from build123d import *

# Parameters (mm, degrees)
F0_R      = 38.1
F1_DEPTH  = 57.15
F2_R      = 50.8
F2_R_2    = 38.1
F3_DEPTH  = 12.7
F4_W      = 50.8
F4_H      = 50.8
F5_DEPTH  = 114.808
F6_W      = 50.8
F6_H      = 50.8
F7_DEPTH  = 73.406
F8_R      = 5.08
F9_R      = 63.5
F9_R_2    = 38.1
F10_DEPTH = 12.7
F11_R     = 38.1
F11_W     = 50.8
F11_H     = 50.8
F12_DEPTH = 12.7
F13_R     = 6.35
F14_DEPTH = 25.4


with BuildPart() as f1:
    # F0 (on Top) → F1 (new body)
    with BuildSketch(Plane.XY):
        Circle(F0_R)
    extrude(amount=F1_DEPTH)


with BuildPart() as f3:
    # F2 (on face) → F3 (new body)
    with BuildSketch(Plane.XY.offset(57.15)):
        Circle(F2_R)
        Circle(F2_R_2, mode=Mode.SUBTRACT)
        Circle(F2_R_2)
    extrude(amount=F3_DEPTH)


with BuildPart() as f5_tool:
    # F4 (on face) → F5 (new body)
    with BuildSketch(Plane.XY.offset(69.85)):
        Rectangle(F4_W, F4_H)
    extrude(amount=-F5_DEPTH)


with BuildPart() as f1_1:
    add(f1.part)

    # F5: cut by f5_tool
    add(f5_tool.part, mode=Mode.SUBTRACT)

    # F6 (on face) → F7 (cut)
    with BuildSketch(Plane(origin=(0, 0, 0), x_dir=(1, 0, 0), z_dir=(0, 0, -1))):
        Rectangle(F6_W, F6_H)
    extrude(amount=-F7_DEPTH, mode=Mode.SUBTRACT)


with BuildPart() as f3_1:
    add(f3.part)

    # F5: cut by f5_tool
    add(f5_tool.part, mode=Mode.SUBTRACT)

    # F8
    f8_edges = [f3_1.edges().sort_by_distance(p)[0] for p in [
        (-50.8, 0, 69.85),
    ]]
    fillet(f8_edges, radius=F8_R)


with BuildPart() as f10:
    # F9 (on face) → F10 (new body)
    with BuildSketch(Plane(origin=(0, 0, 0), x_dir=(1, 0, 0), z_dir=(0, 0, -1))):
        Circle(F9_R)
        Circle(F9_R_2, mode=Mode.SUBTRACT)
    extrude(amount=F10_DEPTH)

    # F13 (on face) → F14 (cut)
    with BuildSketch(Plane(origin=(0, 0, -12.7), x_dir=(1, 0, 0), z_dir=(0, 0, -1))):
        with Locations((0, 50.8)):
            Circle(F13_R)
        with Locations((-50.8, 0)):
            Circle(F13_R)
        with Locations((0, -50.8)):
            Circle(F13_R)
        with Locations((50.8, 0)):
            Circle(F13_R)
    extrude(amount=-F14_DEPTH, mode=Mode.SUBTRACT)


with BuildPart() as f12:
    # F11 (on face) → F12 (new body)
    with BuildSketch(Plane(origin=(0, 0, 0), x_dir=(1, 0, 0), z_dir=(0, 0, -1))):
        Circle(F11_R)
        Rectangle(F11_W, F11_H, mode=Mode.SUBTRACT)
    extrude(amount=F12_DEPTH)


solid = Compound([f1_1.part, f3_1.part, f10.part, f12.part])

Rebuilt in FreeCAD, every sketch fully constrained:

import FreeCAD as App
import Part
import Sketcher
Q = App.Units.Quantity


def edges_at(feature, points):
    """Names of the edges that pass closest to the given points."""
    edges = feature.Shape.Edges
    near = lambda p: min(range(len(edges)), key=lambda i: edges[i].distToShape(Part.Vertex(*p))[0])
    return sorted({f"Edge{near(p) + 1}" for p in points})

doc = App.newDocument("Part")
body = doc.addObject("PartDesign::Body", "Body")

# Sketch on XY plane
sketch1 = body.newObject("Sketcher::SketchObject", "Sketch")
sketch1.AttachmentSupport = (doc.getObject("XY_Plane"), [""])
sketch1.MapMode = "FlatFace"
sketch1.addGeometry(Part.Circle(App.Vector(0, 0, 0), App.Vector(0, 0, 1), 38), False)
sketch1.addConstraint([
    Sketcher.Constraint("Coincident", 0, 3, -1, 1),
    Sketcher.Constraint("Diameter", 0, Q("3 in")),
])
pad1 = body.newObject("PartDesign::Pad", "Pad")
pad1.Profile = sketch1
pad1.Length = Q("2.25 in")
body2 = doc.addObject("PartDesign::Body", "Body001")

# Sketch on XY plane
sketch2 = body2.newObject("Sketcher::SketchObject", "Sketch001")
sketch2.AttachmentSupport = (doc.getObject("XY_Plane001"), [""])
sketch2.MapMode = "FlatFace"
sketch2.AttachmentOffset = App.Placement(App.Vector(0, 0, 2.25 * 25.4), App.Rotation())
sketch2.addGeometry(Part.Circle(App.Vector(0, 0, 0), App.Vector(0, 0, 1), 51), False)
sketch2.addConstraint([
    Sketcher.Constraint("Coincident", 0, 3, -1, 1),
    Sketcher.Constraint("Diameter", 0, Q("4 in")),
])
pad2 = body2.newObject("PartDesign::Pad", "Pad001")
pad2.Profile = sketch2
pad2.Length = Q("0.5 in")
body3 = doc.addObject("PartDesign::Body", "Body002")

# Sketch on XY plane
sketch3 = body3.newObject("Sketcher::SketchObject", "Sketch002")
sketch3.AttachmentSupport = (doc.getObject("XY_Plane002"), [""])
sketch3.MapMode = "FlatFace"
sketch3.AttachmentOffset = App.Placement(App.Vector(0, 0, 2.75 * 25.4), App.Rotation())
sketch3.addGeometry([
    Part.LineSegment(App.Vector(-25, 25, 0), App.Vector(-25, -25, 0)),
    Part.LineSegment(App.Vector(-25, -25, 0), App.Vector(25, -25, 0)),
    Part.LineSegment(App.Vector(25, -25, 0), App.Vector(25, 25, 0)),
    Part.LineSegment(App.Vector(25, 25, 0), App.Vector(-25, 25, 0)),
], False)
sketch3.addConstraint([
    Sketcher.Constraint("Coincident", 0, 2, 1, 1),
    Sketcher.Constraint("Coincident", 1, 2, 2, 1),
    Sketcher.Constraint("Coincident", 2, 2, 3, 1),
    Sketcher.Constraint("Coincident", 3, 2, 0, 1),
    Sketcher.Constraint("Vertical", 0),
    Sketcher.Constraint("Horizontal", 1),
    Sketcher.Constraint("Vertical", 2),
    Sketcher.Constraint("Horizontal", 3),
    Sketcher.Constraint("Symmetric", 0, 2, 2, 2, -1, 1),
    Sketcher.Constraint("Equal", 3, 0),
    Sketcher.Constraint("DistanceX", 1, 1, 1, 2, Q("2 in")),
])
pad3 = body3.newObject("PartDesign::Pad", "Pad002")
pad3.Profile = sketch3
pad3.Length = Q("4.52 in")
pad3.Reversed = True
doc.recompute()

body4 = doc.addObject("PartDesign::Body", "Body003")
body4.BaseFeature = body3
boolean = body.newObject("PartDesign::Boolean", "Boolean")
boolean.Type = "Cut"
boolean.addObjects([body4])
doc.recompute()

# Sketch on XY plane
sketch4 = body.newObject("Sketcher::SketchObject", "Sketch003")
sketch4.AttachmentSupport = (doc.getObject("XY_Plane"), [""])
sketch4.MapMode = "FlatFace"
sketch4.addGeometry([
    Part.LineSegment(App.Vector(-25, -25, 0), App.Vector(-25, 25, 0)),
    Part.LineSegment(App.Vector(-25, 25, 0), App.Vector(25, 25, 0)),
    Part.LineSegment(App.Vector(25, 25, 0), App.Vector(25, -25, 0)),
    Part.LineSegment(App.Vector(25, -25, 0), App.Vector(-25, -25, 0)),
], False)
sketch4.addConstraint([
    Sketcher.Constraint("Coincident", 0, 2, 1, 1),
    Sketcher.Constraint("Coincident", 1, 2, 2, 1),
    Sketcher.Constraint("Coincident", 2, 2, 3, 1),
    Sketcher.Constraint("Coincident", 3, 2, 0, 1),
    Sketcher.Constraint("Vertical", 0),
    Sketcher.Constraint("Horizontal", 1),
    Sketcher.Constraint("Vertical", 2),
    Sketcher.Constraint("Horizontal", 3),
    Sketcher.Constraint("Symmetric", 0, 2, 2, 2, -1, 1),
    Sketcher.Constraint("Equal", 3, 0),
    Sketcher.Constraint("DistanceX", 1, 1, 1, 2, Q("2 in")),
])
pocket1 = body.newObject("PartDesign::Pocket", "Pocket")
pocket1.Profile = sketch4
pocket1.Length = Q("2.89 in")
pocket1.Reversed = True
doc.recompute()

boolean2 = body2.newObject("PartDesign::Boolean", "Boolean001")
boolean2.Type = "Cut"
boolean2.addObjects([body3])
doc.recompute()

fillet = body2.newObject("PartDesign::Fillet", "Fillet")
fillet.Base = (boolean2, edges_at(boolean2, [(-50.8, 0, 69.85)]))
fillet.Radius = Q("0.2 in")
body5 = doc.addObject("PartDesign::Body", "Body004")

# Sketch on XY plane
sketch5 = body5.newObject("Sketcher::SketchObject", "Sketch004")
sketch5.AttachmentSupport = (doc.getObject("XY_Plane004"), [""])
sketch5.MapMode = "FlatFace"
sketch5.addGeometry([
    Part.Circle(App.Vector(0, 0, 0), App.Vector(0, 0, 1), 64),
    Part.Circle(App.Vector(0, 0, 0), App.Vector(0, 0, 1), 38),
], False)
sketch5.addConstraint([
    Sketcher.Constraint("Coincident", 0, 3, -1, 1),
    Sketcher.Constraint("Coincident", 1, 3, -1, 1),
    Sketcher.Constraint("Diameter", 0, Q("5 in")),
    Sketcher.Constraint("Diameter", 1, Q("3 in")),
])
pad4 = body5.newObject("PartDesign::Pad", "Pad003")
pad4.Profile = sketch5
pad4.Length = Q("0.5 in")
pad4.Reversed = True

# Sketch on XY plane
sketch6 = body5.newObject("Sketcher::SketchObject", "Sketch005")
sketch6.AttachmentSupport = (doc.getObject("XY_Plane004"), [""])
sketch6.MapMode = "FlatFace"
sketch6.AttachmentOffset = App.Placement(App.Vector(0, 0, -0.5 * 25.4), App.Rotation())
sketch6.addGeometry([
    Part.Circle(App.Vector(0, -51, 0), App.Vector(0, 0, 1), 6),
    Part.Circle(App.Vector(-51, 0, 0), App.Vector(0, 0, 1), 6),
    Part.Circle(App.Vector(0, 51, 0), App.Vector(0, 0, 1), 6),
    Part.Circle(App.Vector(51, 0, 0), App.Vector(0, 0, 1), 6),
], False)
sketch6.addConstraint([
    Sketcher.Constraint("Equal", 0, 1),
    Sketcher.Constraint("Equal", 1, 2),
    Sketcher.Constraint("Equal", 2, 3),
    Sketcher.Constraint("Symmetric", 0, 3, 2, 3, -1, 1),
    Sketcher.Constraint("Symmetric", 1, 3, 3, 3, -1, 1),
    Sketcher.Constraint("PointOnObject", 0, 3, -2),
    Sketcher.Constraint("PointOnObject", 1, 3, -1),
    Sketcher.Constraint("Diameter", 0, Q("0.5 in")),
    Sketcher.Constraint("DistanceY", 0, 3, -1, 1, Q("2 in")),
    Sketcher.Constraint("DistanceX", 1, 3, -1, 1, Q("2 in")),
])
pocket2 = body5.newObject("PartDesign::Pocket", "Pocket001")
pocket2.Profile = sketch6
pocket2.Length = Q("1 in")
pocket2.Reversed = True
body6 = doc.addObject("PartDesign::Body", "Body005")

# Sketch on XY plane
sketch7 = body6.newObject("Sketcher::SketchObject", "Sketch006")
sketch7.AttachmentSupport = (doc.getObject("XY_Plane005"), [""])
sketch7.MapMode = "FlatFace"
sketch7.addGeometry([
    Part.Circle(App.Vector(0, 0, 0), App.Vector(0, 0, 1), 38),  # 0
    Part.LineSegment(App.Vector(25, 25, 0), App.Vector(-25, 25, 0)),  # 1
    Part.LineSegment(App.Vector(-25, 25, 0), App.Vector(-25, -25, 0)),  # 2
    Part.LineSegment(App.Vector(-25, -25, 0), App.Vector(25, -25, 0)),  # 3
    Part.LineSegment(App.Vector(25, -25, 0), App.Vector(25, 25, 0)),  # 4
], False)
sketch7.addConstraint([
    Sketcher.Constraint("Coincident", 1, 2, 2, 1),
    Sketcher.Constraint("Coincident", 2, 2, 3, 1),
    Sketcher.Constraint("Coincident", 3, 2, 4, 1),
    Sketcher.Constraint("Coincident", 4, 2, 1, 1),
    Sketcher.Constraint("Horizontal", 1),
    Sketcher.Constraint("Vertical", 2),
    Sketcher.Constraint("Horizontal", 3),
    Sketcher.Constraint("Vertical", 4),
    Sketcher.Constraint("Coincident", 0, 3, -1, 1),
    Sketcher.Constraint("Symmetric", 1, 2, 3, 2, -1, 1),
    Sketcher.Constraint("Equal", 3, 2),
    Sketcher.Constraint("Diameter", 0, Q("3 in")),
    Sketcher.Constraint("DistanceX", 1, 2, 1, 1, Q("2 in")),
])
pad5 = body6.newObject("PartDesign::Pad", "Pad004")
pad5.Profile = sketch7
pad5.Length = Q("0.5 in")
pad5.Reversed = True

doc.recompute()
